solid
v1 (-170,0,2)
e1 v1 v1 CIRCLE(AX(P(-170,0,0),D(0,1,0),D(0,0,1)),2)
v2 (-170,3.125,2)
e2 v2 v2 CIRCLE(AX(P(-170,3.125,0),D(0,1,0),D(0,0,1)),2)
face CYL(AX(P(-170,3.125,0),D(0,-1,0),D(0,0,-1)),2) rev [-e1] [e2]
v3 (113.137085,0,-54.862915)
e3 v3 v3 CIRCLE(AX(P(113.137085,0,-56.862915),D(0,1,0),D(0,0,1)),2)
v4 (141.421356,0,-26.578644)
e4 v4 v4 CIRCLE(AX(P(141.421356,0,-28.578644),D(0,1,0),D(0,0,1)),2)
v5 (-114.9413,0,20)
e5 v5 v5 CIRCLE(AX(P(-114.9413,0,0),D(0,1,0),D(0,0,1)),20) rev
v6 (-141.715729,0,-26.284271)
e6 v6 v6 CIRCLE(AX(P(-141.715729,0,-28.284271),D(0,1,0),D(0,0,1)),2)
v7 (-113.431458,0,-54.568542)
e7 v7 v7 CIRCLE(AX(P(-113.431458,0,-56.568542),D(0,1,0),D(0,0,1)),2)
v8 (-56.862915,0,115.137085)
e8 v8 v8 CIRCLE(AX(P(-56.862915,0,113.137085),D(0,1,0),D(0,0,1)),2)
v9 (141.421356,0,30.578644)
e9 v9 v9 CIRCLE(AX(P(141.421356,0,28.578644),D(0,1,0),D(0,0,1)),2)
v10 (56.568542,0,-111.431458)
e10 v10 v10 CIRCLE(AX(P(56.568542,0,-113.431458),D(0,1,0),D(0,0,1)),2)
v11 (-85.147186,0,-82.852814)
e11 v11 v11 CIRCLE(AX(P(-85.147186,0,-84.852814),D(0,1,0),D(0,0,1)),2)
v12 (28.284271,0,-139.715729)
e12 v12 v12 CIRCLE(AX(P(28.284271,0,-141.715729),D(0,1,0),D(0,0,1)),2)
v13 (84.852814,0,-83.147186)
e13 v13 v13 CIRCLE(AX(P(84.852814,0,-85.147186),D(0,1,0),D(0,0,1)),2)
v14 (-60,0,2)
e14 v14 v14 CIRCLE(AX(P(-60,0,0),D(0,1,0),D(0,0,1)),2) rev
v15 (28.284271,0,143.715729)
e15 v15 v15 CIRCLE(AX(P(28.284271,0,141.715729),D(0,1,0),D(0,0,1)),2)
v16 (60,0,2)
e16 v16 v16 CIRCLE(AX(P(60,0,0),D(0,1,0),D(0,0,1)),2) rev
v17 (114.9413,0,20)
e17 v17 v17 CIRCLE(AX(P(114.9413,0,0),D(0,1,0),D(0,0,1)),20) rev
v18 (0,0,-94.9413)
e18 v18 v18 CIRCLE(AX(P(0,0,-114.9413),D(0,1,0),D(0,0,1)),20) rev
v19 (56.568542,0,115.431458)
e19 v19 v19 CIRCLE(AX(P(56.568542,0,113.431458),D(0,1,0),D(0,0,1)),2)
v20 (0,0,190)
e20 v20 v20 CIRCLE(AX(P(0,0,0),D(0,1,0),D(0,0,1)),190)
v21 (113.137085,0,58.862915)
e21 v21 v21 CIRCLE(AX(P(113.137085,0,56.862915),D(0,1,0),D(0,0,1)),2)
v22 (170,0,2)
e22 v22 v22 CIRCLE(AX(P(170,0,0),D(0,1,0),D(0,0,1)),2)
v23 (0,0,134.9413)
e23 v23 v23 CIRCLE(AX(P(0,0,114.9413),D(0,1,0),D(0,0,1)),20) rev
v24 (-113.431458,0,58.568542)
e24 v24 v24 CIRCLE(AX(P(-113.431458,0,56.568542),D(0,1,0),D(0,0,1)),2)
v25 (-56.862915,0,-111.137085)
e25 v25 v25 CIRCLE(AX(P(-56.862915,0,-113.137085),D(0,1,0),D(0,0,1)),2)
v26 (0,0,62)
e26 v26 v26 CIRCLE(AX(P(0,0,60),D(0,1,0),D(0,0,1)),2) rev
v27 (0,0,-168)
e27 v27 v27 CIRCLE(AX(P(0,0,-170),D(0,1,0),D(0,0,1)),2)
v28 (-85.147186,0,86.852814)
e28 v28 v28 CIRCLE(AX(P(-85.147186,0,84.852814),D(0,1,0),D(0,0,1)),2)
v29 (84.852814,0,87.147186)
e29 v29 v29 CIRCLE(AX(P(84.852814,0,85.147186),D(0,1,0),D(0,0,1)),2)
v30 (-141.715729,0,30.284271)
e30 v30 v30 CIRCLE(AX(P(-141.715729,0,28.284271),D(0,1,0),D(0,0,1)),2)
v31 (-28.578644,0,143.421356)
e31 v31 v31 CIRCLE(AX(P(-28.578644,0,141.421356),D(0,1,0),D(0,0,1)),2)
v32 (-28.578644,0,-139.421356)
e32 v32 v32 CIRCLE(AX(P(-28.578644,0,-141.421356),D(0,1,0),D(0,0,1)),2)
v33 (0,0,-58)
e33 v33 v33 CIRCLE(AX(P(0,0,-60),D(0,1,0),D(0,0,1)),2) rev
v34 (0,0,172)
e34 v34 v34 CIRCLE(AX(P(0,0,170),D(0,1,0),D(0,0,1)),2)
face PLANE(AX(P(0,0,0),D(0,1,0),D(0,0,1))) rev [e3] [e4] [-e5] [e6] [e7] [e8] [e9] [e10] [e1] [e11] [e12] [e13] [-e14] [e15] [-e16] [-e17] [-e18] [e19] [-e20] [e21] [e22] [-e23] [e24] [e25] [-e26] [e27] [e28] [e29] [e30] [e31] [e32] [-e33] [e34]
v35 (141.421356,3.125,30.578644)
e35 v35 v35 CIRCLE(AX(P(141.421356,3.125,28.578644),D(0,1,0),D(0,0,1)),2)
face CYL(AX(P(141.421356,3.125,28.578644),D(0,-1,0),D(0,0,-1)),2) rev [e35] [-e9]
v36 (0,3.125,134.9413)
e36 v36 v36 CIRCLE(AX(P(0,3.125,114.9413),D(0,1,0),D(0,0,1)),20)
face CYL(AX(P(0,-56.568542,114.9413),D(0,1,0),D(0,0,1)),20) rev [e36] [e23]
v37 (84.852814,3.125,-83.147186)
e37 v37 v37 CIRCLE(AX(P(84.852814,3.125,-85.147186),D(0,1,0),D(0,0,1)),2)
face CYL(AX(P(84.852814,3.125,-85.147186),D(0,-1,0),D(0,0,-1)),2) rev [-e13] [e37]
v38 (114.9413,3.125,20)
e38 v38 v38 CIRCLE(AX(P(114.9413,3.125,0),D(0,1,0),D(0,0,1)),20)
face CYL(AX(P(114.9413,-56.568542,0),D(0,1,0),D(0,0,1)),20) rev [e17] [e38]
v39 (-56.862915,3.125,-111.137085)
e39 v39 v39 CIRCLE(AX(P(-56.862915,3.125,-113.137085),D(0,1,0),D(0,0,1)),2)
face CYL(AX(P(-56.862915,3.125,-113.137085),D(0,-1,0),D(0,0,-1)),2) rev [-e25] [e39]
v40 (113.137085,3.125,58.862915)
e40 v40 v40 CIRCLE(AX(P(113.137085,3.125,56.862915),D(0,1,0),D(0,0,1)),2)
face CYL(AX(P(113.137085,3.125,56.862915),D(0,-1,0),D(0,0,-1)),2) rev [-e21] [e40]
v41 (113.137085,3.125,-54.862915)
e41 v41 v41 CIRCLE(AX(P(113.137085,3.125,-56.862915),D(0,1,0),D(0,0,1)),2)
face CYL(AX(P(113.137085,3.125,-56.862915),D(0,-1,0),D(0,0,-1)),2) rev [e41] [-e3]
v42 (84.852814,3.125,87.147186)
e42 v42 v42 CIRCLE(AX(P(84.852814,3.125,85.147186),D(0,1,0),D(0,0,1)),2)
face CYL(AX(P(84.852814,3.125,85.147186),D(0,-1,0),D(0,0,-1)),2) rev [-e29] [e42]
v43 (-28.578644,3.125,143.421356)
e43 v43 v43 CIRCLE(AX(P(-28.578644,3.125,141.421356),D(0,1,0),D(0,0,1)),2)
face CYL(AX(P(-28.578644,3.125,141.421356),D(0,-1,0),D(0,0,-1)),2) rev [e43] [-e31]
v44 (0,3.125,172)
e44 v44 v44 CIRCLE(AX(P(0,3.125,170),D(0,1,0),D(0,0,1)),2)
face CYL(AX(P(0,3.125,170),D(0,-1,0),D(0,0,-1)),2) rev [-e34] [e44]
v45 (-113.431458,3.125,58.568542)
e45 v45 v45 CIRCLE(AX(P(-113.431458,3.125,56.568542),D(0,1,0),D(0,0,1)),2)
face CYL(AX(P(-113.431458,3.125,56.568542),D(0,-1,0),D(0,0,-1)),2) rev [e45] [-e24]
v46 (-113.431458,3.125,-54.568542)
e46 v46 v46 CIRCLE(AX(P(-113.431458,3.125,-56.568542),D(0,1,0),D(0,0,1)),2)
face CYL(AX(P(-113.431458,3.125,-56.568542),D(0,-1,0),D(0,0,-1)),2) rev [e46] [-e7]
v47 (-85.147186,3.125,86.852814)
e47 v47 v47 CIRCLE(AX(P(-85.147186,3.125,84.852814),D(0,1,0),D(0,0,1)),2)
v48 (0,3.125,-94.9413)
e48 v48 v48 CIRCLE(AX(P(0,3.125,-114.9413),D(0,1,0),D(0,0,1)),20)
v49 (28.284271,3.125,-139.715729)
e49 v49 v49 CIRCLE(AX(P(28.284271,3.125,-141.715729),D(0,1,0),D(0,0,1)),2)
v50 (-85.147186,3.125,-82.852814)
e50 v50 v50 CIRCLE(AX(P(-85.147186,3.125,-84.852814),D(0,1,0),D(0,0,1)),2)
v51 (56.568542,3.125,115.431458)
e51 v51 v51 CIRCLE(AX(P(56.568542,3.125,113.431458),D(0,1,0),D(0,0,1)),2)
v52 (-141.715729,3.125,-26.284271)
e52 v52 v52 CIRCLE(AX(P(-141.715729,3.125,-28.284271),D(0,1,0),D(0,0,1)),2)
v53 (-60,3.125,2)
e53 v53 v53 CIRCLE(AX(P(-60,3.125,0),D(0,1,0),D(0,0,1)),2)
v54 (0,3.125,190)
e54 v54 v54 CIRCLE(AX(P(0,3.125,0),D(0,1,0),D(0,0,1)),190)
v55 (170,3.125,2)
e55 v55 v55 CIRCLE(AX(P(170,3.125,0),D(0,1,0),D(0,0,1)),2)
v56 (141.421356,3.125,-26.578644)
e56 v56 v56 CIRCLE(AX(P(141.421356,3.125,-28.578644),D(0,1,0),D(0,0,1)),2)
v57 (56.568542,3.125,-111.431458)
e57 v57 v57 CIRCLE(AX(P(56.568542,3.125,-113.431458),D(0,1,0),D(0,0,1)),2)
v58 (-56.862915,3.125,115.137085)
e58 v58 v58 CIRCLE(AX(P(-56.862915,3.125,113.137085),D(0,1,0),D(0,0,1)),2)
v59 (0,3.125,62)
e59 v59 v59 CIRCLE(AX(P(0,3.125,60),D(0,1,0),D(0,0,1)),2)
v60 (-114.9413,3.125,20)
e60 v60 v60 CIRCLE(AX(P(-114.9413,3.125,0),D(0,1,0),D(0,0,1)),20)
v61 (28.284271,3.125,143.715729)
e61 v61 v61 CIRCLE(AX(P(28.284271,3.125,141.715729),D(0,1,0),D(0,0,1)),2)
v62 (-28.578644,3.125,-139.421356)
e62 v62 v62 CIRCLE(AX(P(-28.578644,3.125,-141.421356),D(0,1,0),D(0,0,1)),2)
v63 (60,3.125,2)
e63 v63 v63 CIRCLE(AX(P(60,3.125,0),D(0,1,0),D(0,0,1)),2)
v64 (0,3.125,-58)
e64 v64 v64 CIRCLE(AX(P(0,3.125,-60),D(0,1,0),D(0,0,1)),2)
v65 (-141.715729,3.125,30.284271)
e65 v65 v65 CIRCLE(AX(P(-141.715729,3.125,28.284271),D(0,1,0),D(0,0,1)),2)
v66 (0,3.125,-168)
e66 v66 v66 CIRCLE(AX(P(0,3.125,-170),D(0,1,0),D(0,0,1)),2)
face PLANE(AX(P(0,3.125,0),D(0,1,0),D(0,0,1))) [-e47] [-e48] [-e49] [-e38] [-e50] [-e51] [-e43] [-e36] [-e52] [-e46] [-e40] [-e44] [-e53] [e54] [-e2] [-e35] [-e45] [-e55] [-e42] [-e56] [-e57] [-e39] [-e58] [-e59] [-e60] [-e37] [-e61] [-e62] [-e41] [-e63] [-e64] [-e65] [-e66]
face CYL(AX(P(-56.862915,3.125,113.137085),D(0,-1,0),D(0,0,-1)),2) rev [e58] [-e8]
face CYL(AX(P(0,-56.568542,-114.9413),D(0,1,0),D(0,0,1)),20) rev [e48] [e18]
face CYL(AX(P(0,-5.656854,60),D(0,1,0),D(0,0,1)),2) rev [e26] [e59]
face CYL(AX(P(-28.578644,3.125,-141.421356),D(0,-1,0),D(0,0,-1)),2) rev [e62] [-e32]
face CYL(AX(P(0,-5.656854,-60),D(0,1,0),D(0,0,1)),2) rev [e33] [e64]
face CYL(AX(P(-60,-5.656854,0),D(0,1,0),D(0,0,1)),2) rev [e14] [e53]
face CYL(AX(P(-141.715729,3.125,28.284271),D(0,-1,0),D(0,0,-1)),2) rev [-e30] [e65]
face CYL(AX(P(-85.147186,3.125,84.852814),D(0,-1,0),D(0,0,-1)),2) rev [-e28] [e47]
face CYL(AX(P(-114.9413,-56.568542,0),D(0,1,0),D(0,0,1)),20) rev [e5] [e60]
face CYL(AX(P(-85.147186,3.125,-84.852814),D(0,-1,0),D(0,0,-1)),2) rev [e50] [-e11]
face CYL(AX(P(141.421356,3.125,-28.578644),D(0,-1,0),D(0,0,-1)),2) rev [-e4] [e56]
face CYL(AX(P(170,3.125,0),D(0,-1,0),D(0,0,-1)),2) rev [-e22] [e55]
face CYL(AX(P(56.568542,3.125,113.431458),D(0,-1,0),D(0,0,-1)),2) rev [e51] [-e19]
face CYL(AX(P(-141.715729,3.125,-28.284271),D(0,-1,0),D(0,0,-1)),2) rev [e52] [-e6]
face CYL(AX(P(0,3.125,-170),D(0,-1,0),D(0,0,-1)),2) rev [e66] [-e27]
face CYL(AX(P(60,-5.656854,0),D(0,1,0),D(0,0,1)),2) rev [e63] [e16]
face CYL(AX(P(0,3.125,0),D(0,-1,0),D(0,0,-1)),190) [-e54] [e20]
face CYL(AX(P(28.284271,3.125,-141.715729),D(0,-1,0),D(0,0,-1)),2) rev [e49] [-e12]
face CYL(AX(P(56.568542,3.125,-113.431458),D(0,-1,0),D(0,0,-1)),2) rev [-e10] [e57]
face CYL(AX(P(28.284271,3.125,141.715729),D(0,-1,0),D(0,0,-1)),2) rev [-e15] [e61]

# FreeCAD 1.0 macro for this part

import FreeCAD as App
import Part
import Sketcher

doc = App.newDocument("Part")
body = doc.addObject("PartDesign::Body", "Body")

sketch1 = doc.addObject("Sketcher::SketchObject", "Sketch")
body.addObject(sketch1)
sketch1.AttachmentSupport = (doc.XZ_Plane, [""])
sketch1.MapMode = "FlatFace"
sketch1.addGeometry(Part.Circle(App.Vector(0, 0, 0), App.Vector(0, 0, 1), 190), False)
sketch1.addGeometry(Part.Circle(App.Vector(-141.715729, -28.284271, 0), App.Vector(0, 0, 1), 2), False)
sketch1.addGeometry(Part.Circle(App.Vector(-113.431458, -56.568542, 0), App.Vector(0, 0, 1), 2), False)
sketch1.addGeometry(Part.Circle(App.Vector(-56.862915, -113.137085, 0), App.Vector(0, 0, 1), 2), False)
sketch1.addGeometry(Part.Circle(App.Vector(-28.578644, -141.421356, 0), App.Vector(0, 0, 1), 2), False)
sketch1.addGeometry(Part.Circle(App.Vector(0, -170, 0), App.Vector(0, 0, 1), 2), False)
sketch1.addGeometry(Part.Circle(App.Vector(-85.147186, -84.852814, 0), App.Vector(0, 0, 1), 2), False)
sketch1.addGeometry(Part.Circle(App.Vector(-170, 0, 0), App.Vector(0, 0, 1), 2), False)
sketch1.addGeometry(Part.Circle(App.Vector(-141.715729, 28.284271, 0), App.Vector(0, 0, 1), 2), False)
sketch1.addGeometry(Part.Circle(App.Vector(-113.431458, 56.568542, 0), App.Vector(0, 0, 1), 2), False)
sketch1.addGeometry(Part.Circle(App.Vector(-85.147186, 84.852814, 0), App.Vector(0, 0, 1), 2), False)
sketch1.addGeometry(Part.Circle(App.Vector(-56.862915, 113.137085, 0), App.Vector(0, 0, 1), 2), False)
sketch1.addGeometry(Part.Circle(App.Vector(-28.578644, 141.421356, 0), App.Vector(0, 0, 1), 2), False)
sketch1.addGeometry(Part.Circle(App.Vector(28.284271, -141.715729, 0), App.Vector(0, 0, 1), 2), False)
sketch1.addGeometry(Part.Circle(App.Vector(56.568542, -113.431458, 0), App.Vector(0, 0, 1), 2), False)
sketch1.addGeometry(Part.Circle(App.Vector(84.852814, -85.147186, 0), App.Vector(0, 0, 1), 2), False)
sketch1.addGeometry(Part.Circle(App.Vector(113.137085, -56.862915, 0), App.Vector(0, 0, 1), 2), False)
sketch1.addGeometry(Part.Circle(App.Vector(141.421356, -28.578644, 0), App.Vector(0, 0, 1), 2), False)
sketch1.addGeometry(Part.Circle(App.Vector(170, 0, 0), App.Vector(0, 0, 1), 2), False)
sketch1.addGeometry(Part.Circle(App.Vector(84.852814, 85.147186, 0), App.Vector(0, 0, 1), 2), False)
sketch1.addGeometry(Part.Circle(App.Vector(0, 170, 0), App.Vector(0, 0, 1), 2), False)
sketch1.addGeometry(Part.Circle(App.Vector(28.284271, 141.715729, 0), App.Vector(0, 0, 1), 2), False)
sketch1.addGeometry(Part.Circle(App.Vector(56.568542, 113.431458, 0), App.Vector(0, 0, 1), 2), False)
sketch1.addGeometry(Part.Circle(App.Vector(113.137085, 56.862915, 0), App.Vector(0, 0, 1), 2), False)
sketch1.addGeometry(Part.Circle(App.Vector(141.421356, 28.578644, 0), App.Vector(0, 0, 1), 2), False)
sketch1.addConstraint(Sketcher.Constraint("Coincident", 0, 3, -1, 1))
sketch1.addConstraint(Sketcher.Constraint("Equal", 1, 2))
sketch1.addConstraint(Sketcher.Constraint("Equal", 2, 3))
sketch1.addConstraint(Sketcher.Constraint("Equal", 3, 4))
sketch1.addConstraint(Sketcher.Constraint("Equal", 4, 5))
sketch1.addConstraint(Sketcher.Constraint("Equal", 5, 6))
sketch1.addConstraint(Sketcher.Constraint("Equal", 6, 7))
sketch1.addConstraint(Sketcher.Constraint("Equal", 7, 8))
sketch1.addConstraint(Sketcher.Constraint("Equal", 8, 9))
sketch1.addConstraint(Sketcher.Constraint("Equal", 9, 10))
sketch1.addConstraint(Sketcher.Constraint("Equal", 10, 11))
sketch1.addConstraint(Sketcher.Constraint("Equal", 11, 12))
sketch1.addConstraint(Sketcher.Constraint("Equal", 12, 13))
sketch1.addConstraint(Sketcher.Constraint("Equal", 13, 14))
sketch1.addConstraint(Sketcher.Constraint("Equal", 14, 15))
sketch1.addConstraint(Sketcher.Constraint("Equal", 15, 16))
sketch1.addConstraint(Sketcher.Constraint("Equal", 16, 17))
sketch1.addConstraint(Sketcher.Constraint("Equal", 17, 18))
sketch1.addConstraint(Sketcher.Constraint("Equal", 18, 19))
sketch1.addConstraint(Sketcher.Constraint("Equal", 19, 20))
sketch1.addConstraint(Sketcher.Constraint("Equal", 20, 21))
sketch1.addConstraint(Sketcher.Constraint("Equal", 21, 22))
sketch1.addConstraint(Sketcher.Constraint("Equal", 22, 23))
sketch1.addConstraint(Sketcher.Constraint("Equal", 23, 24))
sketch1.addConstraint(Sketcher.Constraint("Symmetric", 7, 3, 18, 3, -1, 1))
sketch1.addConstraint(Sketcher.Constraint("Symmetric", 5, 3, 20, 3, -1, 1))
sketch1.addConstraint(Sketcher.Constraint("Symmetric", 1, 3, 8, 3, -1))
sketch1.addConstraint(Sketcher.Constraint("Symmetric", 2, 3, 9, 3, -1))
sketch1.addConstraint(Sketcher.Constraint("Symmetric", 6, 3, 10, 3, -1))
sketch1.addConstraint(Sketcher.Constraint("Symmetric", 3, 3, 11, 3, -1))
sketch1.addConstraint(Sketcher.Constraint("Symmetric", 4, 3, 12, 3, -1))
sketch1.addConstraint(Sketcher.Constraint("Symmetric", 15, 3, 19, 3, -1))
sketch1.addConstraint(Sketcher.Constraint("Symmetric", 13, 3, 21, 3, -1))
sketch1.addConstraint(Sketcher.Constraint("Symmetric", 14, 3, 22, 3, -1))
sketch1.addConstraint(Sketcher.Constraint("Symmetric", 16, 3, 23, 3, -1))
sketch1.addConstraint(Sketcher.Constraint("Symmetric", 17, 3, 24, 3, -1))
sketch1.addConstraint(Sketcher.Constraint("PointOnObject", 5, 3, -2))
sketch1.addConstraint(Sketcher.Constraint("PointOnObject", 7, 3, -1))
sketch1.addConstraint(Sketcher.Constraint("Diameter", 0, 380.0))
sketch1.addConstraint(Sketcher.Constraint("Diameter", 1, 4.0))
sketch1.addConstraint(Sketcher.Constraint("DistanceY", 5, 3, -1, 1, 170.0))
sketch1.addConstraint(Sketcher.Constraint("DistanceX", 7, 3, -1, 1, 170.0))
sketch1.addConstraint(Sketcher.Constraint("DistanceY", 4, 3, 14, 3, 27.989899))
sketch1.addConstraint(Sketcher.Constraint("DistanceY", 19, 3, 11, 3, 27.989899))
sketch1.addConstraint(Sketcher.Constraint("DistanceX", 1, 3, -1, 1, 141.715729))
sketch1.addConstraint(Sketcher.Constraint("DistanceY", 1, 3, -1, 1, 28.284271))
sketch1.addConstraint(Sketcher.Constraint("DistanceX", -1, 1, 13, 3, 28.284271))
sketch1.addConstraint(Sketcher.Constraint("DistanceY", 13, 3, -1, 1, 141.715729))
sketch1.addConstraint(Sketcher.Constraint("DistanceX", 1, 3, 2, 3, 28.284271))
sketch1.addConstraint(Sketcher.Constraint("DistanceY", 2, 3, 1, 3, 28.284271))
sketch1.addConstraint(Sketcher.Constraint("DistanceX", 3, 3, 4, 3, 28.284271))
sketch1.addConstraint(Sketcher.Constraint("DistanceY", 4, 3, 3, 3, 28.284271))
sketch1.addConstraint(Sketcher.Constraint("DistanceX", 2, 3, 6, 3, 28.284271))
sketch1.addConstraint(Sketcher.Constraint("DistanceY", 6, 3, 2, 3, 28.284271))
sketch1.addConstraint(Sketcher.Constraint("DistanceX", 6, 3, 3, 3, 28.284271))
sketch1.addConstraint(Sketcher.Constraint("DistanceY", 3, 3, 6, 3, 28.284271))
sketch1.addConstraint(Sketcher.Constraint("DistanceX", 13, 3, 14, 3, 28.284271))
sketch1.addConstraint(Sketcher.Constraint("DistanceX", 14, 3, 15, 3, 28.284271))
sketch1.addConstraint(Sketcher.Constraint("DistanceX", 15, 3, 16, 3, 28.284271))
sketch1.addConstraint(Sketcher.Constraint("DistanceY", 15, 3, 16, 3, 28.284271))
sketch1.addConstraint(Sketcher.Constraint("DistanceX", 16, 3, 17, 3, 28.284271))
sketch1.addConstraint(Sketcher.Constraint("DistanceY", 16, 3, 17, 3, 28.284271))
pad1 = doc.addObject("PartDesign::Pad", "Pad")
body.addObject(pad1)
pad1.Profile = sketch1
pad1.Length = 3.125
pad1.Reversed = True

sketch2 = doc.addObject("Sketcher::SketchObject", "Sketch001")
body.addObject(sketch2)
sketch2.AttachmentSupport = (doc.XZ_Plane, [""])
sketch2.MapMode = "FlatFace"
sketch2.AttachmentOffset = App.Placement(App.Vector(0, 0, -3.125), App.Rotation())
sketch2.addGeometry(Part.Circle(App.Vector(-60, 0, 0), App.Vector(0, 0, 1), 2), False)
sketch2.addGeometry(Part.Circle(App.Vector(0, -60, 0), App.Vector(0, 0, 1), 2), False)
sketch2.addGeometry(Part.Circle(App.Vector(60, 0, 0), App.Vector(0, 0, 1), 2), False)
sketch2.addGeometry(Part.Circle(App.Vector(0, 60, 0), App.Vector(0, 0, 1), 2), False)
sketch2.addConstraint(Sketcher.Constraint("Equal", 0, 1))
sketch2.addConstraint(Sketcher.Constraint("Equal", 1, 2))
sketch2.addConstraint(Sketcher.Constraint("Equal", 2, 3))
sketch2.addConstraint(Sketcher.Constraint("Symmetric", 0, 3, 2, 3, -1, 1))
sketch2.addConstraint(Sketcher.Constraint("Symmetric", 1, 3, 3, 3, -1, 1))
sketch2.addConstraint(Sketcher.Constraint("PointOnObject", 0, 3, -1))
sketch2.addConstraint(Sketcher.Constraint("PointOnObject", 1, 3, -2))
sketch2.addConstraint(Sketcher.Constraint("Diameter", 0, 4.0))
sketch2.addConstraint(Sketcher.Constraint("DistanceX", 0, 3, -1, 1, 60.0))
sketch2.addConstraint(Sketcher.Constraint("DistanceY", 1, 3, -1, 1, 60.0))
pocket1 = doc.addObject("PartDesign::Pocket", "Pocket")
body.addObject(pocket1)
pocket1.Profile = sketch2
pocket1.Length = 3.125
pocket1.Reversed = True

sketch3 = doc.addObject("Sketcher::SketchObject", "Sketch002")
body.addObject(sketch3)
sketch3.AttachmentSupport = (doc.XZ_Plane, [""])
sketch3.MapMode = "FlatFace"
sketch3.AttachmentOffset = App.Placement(App.Vector(0, 0, -3.125), App.Rotation())
sketch3.addGeometry(Part.Circle(App.Vector(-114.9413, 0, 0), App.Vector(0, 0, 1), 20), False)
sketch3.addGeometry(Part.Circle(App.Vector(0, -114.9413, 0), App.Vector(0, 0, 1), 20), False)
sketch3.addGeometry(Part.Circle(App.Vector(114.9413, 0, 0), App.Vector(0, 0, 1), 20), False)
sketch3.addGeometry(Part.Circle(App.Vector(0, 114.9413, 0), App.Vector(0, 0, 1), 20), False)
sketch3.addConstraint(Sketcher.Constraint("Equal", 0, 1))
sketch3.addConstraint(Sketcher.Constraint("Equal", 1, 2))
sketch3.addConstraint(Sketcher.Constraint("Equal", 2, 3))
sketch3.addConstraint(Sketcher.Constraint("Symmetric", 0, 3, 2, 3, -1, 1))
sketch3.addConstraint(Sketcher.Constraint("Symmetric", 1, 3, 3, 3, -1, 1))
sketch3.addConstraint(Sketcher.Constraint("PointOnObject", 0, 3, -1))
sketch3.addConstraint(Sketcher.Constraint("PointOnObject", 1, 3, -2))
sketch3.addConstraint(Sketcher.Constraint("Diameter", 0, 40.0))
sketch3.addConstraint(Sketcher.Constraint("DistanceX", 0, 3, -1, 1, 114.9413))
sketch3.addConstraint(Sketcher.Constraint("DistanceY", 1, 3, -1, 1, 114.9413))
pocket2 = doc.addObject("PartDesign::Pocket", "Pocket001")
body.addObject(pocket2)
pocket2.Profile = sketch3
pocket2.Length = 3.125
pocket2.Reversed = True

doc.recompute()
